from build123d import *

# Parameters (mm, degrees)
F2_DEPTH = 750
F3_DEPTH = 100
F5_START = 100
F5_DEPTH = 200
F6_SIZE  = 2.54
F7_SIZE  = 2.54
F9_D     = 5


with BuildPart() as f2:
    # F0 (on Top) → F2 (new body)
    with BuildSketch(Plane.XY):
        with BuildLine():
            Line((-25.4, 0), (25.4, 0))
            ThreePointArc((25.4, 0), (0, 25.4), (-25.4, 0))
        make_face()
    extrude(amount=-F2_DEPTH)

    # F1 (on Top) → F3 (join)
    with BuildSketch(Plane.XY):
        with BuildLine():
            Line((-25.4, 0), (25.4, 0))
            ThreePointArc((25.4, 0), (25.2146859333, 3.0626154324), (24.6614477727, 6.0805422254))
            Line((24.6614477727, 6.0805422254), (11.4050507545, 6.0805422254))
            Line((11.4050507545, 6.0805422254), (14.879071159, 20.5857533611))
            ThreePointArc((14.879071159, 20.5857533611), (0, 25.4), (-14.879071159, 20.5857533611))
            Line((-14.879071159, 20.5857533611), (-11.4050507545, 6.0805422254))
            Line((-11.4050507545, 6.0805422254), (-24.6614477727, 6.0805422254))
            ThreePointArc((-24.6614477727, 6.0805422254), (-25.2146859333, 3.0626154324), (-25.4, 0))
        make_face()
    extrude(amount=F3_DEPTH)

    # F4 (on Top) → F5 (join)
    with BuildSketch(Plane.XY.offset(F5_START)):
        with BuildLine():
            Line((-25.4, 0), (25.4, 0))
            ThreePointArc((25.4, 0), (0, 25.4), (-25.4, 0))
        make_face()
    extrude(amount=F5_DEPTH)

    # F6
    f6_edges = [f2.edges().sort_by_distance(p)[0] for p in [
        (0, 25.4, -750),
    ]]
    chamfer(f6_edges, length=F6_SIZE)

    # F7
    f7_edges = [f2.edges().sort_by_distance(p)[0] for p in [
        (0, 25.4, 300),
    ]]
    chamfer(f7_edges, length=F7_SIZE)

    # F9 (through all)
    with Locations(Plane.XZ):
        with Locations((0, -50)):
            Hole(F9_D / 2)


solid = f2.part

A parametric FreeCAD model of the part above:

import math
import FreeCAD as App
import Part
import Sketcher
Q = App.Units.Quantity


def edges_at(feature, points):
    """Names of the edges that pass closest to the given points."""
    edges = feature.Shape.Edges
    near = lambda p: min(range(len(edges)), key=lambda i: edges[i].distToShape(Part.Vertex(*p))[0])
    return sorted({f"Edge{near(p) + 1}" for p in points})

doc = App.newDocument("Part")
body = doc.addObject("PartDesign::Body", "Body")

# Sketch on XY plane
sketch1 = doc.addObject("Sketcher::SketchObject", "Sketch")
body.addObject(sketch1)
sketch1.AttachmentSupport = (doc.XY_Plane, [""])
sketch1.MapMode = "FlatFace"
sketch1.addGeometry(Part.LineSegment(App.Vector(-25, 0, 0), App.Vector(25, 0, 0)), False)
sketch1.addGeometry(Part.ArcOfCircle(Part.Circle(App.Vector(0, 0, 0), App.Vector(0, 0, 1), 25), math.radians(0), math.radians(180)), False)
sketch1.addConstraint(Sketcher.Constraint("Coincident", 0, 1, 1, 2))
sketch1.addConstraint(Sketcher.Constraint("Coincident", 1, 1, 0, 2))
sketch1.addConstraint(Sketcher.Constraint("Horizontal", 0))
sketch1.addConstraint(Sketcher.Constraint("Coincident", 1, 3, -1, 1))
sketch1.addConstraint(Sketcher.Constraint("PointOnObject", 0, 1, -1))
sketch1.addConstraint(Sketcher.Constraint("Radius", 1, Q("25.4 mm")))
pad1 = doc.addObject("PartDesign::Pad", "Pad")
body.addObject(pad1)
pad1.Profile = sketch1
pad1.Length = 750
pad1.Reversed = True

# Sketch on XY plane
sketch2 = doc.addObject("Sketcher::SketchObject", "Sketch001")
body.addObject(sketch2)
sketch2.AttachmentSupport = (doc.XY_Plane, [""])
sketch2.MapMode = "FlatFace"
sketch2.addGeometry(Part.LineSegment(App.Vector(-25, 0, 0), App.Vector(25, 0, 0)), False)
sketch2.addGeometry(Part.ArcOfCircle(Part.Circle(App.Vector(0, 0, 0), App.Vector(0, 0, 1), 25), math.radians(0), math.radians(13.85)), False)
sketch2.addGeometry(Part.LineSegment(App.Vector(25, 6, 0), App.Vector(11, 6, 0)), False)
sketch2.addGeometry(Part.LineSegment(App.Vector(11, 6, 0), App.Vector(15, 21, 0)), False)
sketch2.addGeometry(Part.ArcOfCircle(Part.Circle(App.Vector(0, 0, 0), App.Vector(0, 0, 1), 25), math.radians(54), math.radians(126)), False)
sketch2.addGeometry(Part.LineSegment(App.Vector(-15, 21, 0), App.Vector(-11, 6, 0)), False)
sketch2.addGeometry(Part.LineSegment(App.Vector(-11, 6, 0), App.Vector(-25, 6, 0)), False)
sketch2.addGeometry(Part.ArcOfCircle(Part.Circle(App.Vector(0, 0, 0), App.Vector(0, 0, 1), 25), math.radians(166.15), math.radians(180)), False)
sketch2.addConstraint(Sketcher.Constraint("Coincident", 0, 2, 1, 1))
sketch2.addConstraint(Sketcher.Constraint("Coincident", 1, 2, 2, 1))
sketch2.addConstraint(Sketcher.Constraint("Coincident", 2, 2, 3, 1))
sketch2.addConstraint(Sketcher.Constraint("Coincident", 3, 2, 4, 1))
sketch2.addConstraint(Sketcher.Constraint("Coincident", 4, 2, 5, 1))
sketch2.addConstraint(Sketcher.Constraint("Coincident", 5, 2, 6, 1))
sketch2.addConstraint(Sketcher.Constraint("Coincident", 6, 2, 7, 1))
sketch2.addConstraint(Sketcher.Constraint("Coincident", 7, 2, 0, 1))
sketch2.addConstraint(Sketcher.Constraint("Horizontal", 0))
sketch2.addConstraint(Sketcher.Constraint("Horizontal", 2))
sketch2.addConstraint(Sketcher.Constraint("Horizontal", 6))
sketch2.addConstraint(Sketcher.Constraint("Coincident", 1, 3, -1, 1))
sketch2.addConstraint(Sketcher.Constraint("Coincident", 4, 3, -1, 1))
sketch2.addConstraint(Sketcher.Constraint("Coincident", 7, 3, -1, 1))
sketch2.addConstraint(Sketcher.Constraint("Equal", 1, 4))
sketch2.addConstraint(Sketcher.Constraint("Equal", 4, 7))
sketch2.addConstraint(Sketcher.Constraint("Symmetric", 2, 2, 5, 2, -2))
sketch2.addConstraint(Sketcher.Constraint("PointOnObject", 0, 2, -1))
sketch2.addConstraint(Sketcher.Constraint("Horizontal", 3, 2, 4, 2))
sketch2.addConstraint(Sketcher.Constraint("Radius", 1, Q("25.4 mm")))
sketch2.addConstraint(Sketcher.Constraint("DistanceX", 5, 2, 2, 2, Q("22.810102 mm")))
sketch2.addConstraint(Sketcher.Constraint("DistanceX", 2, 2, 2, 1, Q("13.256397 mm")))
sketch2.addConstraint(Sketcher.Constraint("DistanceX", -1, 1, 3, 2, Q("14.879071 mm")))
pad2 = doc.addObject("PartDesign::Pad", "Pad001")
body.addObject(pad2)
pad2.Profile = sketch2
pad2.Length = 100

# Sketch on XY plane
sketch3 = doc.addObject("Sketcher::SketchObject", "Sketch002")
body.addObject(sketch3)
sketch3.AttachmentSupport = (doc.XY_Plane, [""])
sketch3.MapMode = "FlatFace"
sketch3.AttachmentOffset = App.Placement(App.Vector(0, 0, 100), App.Rotation())
sketch3.addGeometry(Part.LineSegment(App.Vector(-25, 0, 0), App.Vector(25, 0, 0)), False)
sketch3.addGeometry(Part.ArcOfCircle(Part.Circle(App.Vector(0, 0, 0), App.Vector(0, 0, 1), 25), math.radians(0), math.radians(180)), False)
sketch3.addConstraint(Sketcher.Constraint("Coincident", 0, 1, 1, 2))
sketch3.addConstraint(Sketcher.Constraint("Coincident", 1, 1, 0, 2))
sketch3.addConstraint(Sketcher.Constraint("Horizontal", 0))
sketch3.addConstraint(Sketcher.Constraint("Coincident", 1, 3, -1, 1))
sketch3.addConstraint(Sketcher.Constraint("PointOnObject", 0, 1, -1))
sketch3.addConstraint(Sketcher.Constraint("Radius", 1, Q("25.4 mm")))
pad3 = doc.addObject("PartDesign::Pad", "Pad002")
body.addObject(pad3)
pad3.Profile = sketch3
pad3.Length = 200
doc.recompute()

chamfer = doc.addObject("PartDesign::Chamfer", "Chamfer")
body.addObject(chamfer)
chamfer.Base = (pad3, edges_at(pad3, [(0, 25.4, -750)]))
chamfer.Size = 2.54
doc.recompute()

chamfer2 = doc.addObject("PartDesign::Chamfer", "Chamfer001")
body.addObject(chamfer2)
chamfer2.Base = (chamfer, edges_at(chamfer, [(0, 25.4, 300)]))
chamfer2.Size = 2.54

# Sketch on XZ plane
sketch4 = doc.addObject("Sketcher::SketchObject", "Sketch003")
body.addObject(sketch4)
sketch4.AttachmentSupport = (doc.XZ_Plane, [""])
sketch4.MapMode = "FlatFace"
sketch4.addGeometry(Part.Circle(App.Vector(0, -50, 0), App.Vector(0, 0, 1), 2.5), False)
sketch4.addConstraint(Sketcher.Constraint("PointOnObject", 0, 3, -2))
sketch4.addConstraint(Sketcher.Constraint("Diameter", 0, Q("5 mm")))
sketch4.addConstraint(Sketcher.Constraint("DistanceY", 0, 3, -1, 1, Q("50 mm")))
doc.recompute()
hole = doc.addObject("PartDesign::Hole", "Hole")
body.addObject(hole)
hole.Profile = sketch4
hole.ThreadType = "None"
hole.Diameter = 5
hole.DepthType = "ThroughAll"

doc.recompute()
